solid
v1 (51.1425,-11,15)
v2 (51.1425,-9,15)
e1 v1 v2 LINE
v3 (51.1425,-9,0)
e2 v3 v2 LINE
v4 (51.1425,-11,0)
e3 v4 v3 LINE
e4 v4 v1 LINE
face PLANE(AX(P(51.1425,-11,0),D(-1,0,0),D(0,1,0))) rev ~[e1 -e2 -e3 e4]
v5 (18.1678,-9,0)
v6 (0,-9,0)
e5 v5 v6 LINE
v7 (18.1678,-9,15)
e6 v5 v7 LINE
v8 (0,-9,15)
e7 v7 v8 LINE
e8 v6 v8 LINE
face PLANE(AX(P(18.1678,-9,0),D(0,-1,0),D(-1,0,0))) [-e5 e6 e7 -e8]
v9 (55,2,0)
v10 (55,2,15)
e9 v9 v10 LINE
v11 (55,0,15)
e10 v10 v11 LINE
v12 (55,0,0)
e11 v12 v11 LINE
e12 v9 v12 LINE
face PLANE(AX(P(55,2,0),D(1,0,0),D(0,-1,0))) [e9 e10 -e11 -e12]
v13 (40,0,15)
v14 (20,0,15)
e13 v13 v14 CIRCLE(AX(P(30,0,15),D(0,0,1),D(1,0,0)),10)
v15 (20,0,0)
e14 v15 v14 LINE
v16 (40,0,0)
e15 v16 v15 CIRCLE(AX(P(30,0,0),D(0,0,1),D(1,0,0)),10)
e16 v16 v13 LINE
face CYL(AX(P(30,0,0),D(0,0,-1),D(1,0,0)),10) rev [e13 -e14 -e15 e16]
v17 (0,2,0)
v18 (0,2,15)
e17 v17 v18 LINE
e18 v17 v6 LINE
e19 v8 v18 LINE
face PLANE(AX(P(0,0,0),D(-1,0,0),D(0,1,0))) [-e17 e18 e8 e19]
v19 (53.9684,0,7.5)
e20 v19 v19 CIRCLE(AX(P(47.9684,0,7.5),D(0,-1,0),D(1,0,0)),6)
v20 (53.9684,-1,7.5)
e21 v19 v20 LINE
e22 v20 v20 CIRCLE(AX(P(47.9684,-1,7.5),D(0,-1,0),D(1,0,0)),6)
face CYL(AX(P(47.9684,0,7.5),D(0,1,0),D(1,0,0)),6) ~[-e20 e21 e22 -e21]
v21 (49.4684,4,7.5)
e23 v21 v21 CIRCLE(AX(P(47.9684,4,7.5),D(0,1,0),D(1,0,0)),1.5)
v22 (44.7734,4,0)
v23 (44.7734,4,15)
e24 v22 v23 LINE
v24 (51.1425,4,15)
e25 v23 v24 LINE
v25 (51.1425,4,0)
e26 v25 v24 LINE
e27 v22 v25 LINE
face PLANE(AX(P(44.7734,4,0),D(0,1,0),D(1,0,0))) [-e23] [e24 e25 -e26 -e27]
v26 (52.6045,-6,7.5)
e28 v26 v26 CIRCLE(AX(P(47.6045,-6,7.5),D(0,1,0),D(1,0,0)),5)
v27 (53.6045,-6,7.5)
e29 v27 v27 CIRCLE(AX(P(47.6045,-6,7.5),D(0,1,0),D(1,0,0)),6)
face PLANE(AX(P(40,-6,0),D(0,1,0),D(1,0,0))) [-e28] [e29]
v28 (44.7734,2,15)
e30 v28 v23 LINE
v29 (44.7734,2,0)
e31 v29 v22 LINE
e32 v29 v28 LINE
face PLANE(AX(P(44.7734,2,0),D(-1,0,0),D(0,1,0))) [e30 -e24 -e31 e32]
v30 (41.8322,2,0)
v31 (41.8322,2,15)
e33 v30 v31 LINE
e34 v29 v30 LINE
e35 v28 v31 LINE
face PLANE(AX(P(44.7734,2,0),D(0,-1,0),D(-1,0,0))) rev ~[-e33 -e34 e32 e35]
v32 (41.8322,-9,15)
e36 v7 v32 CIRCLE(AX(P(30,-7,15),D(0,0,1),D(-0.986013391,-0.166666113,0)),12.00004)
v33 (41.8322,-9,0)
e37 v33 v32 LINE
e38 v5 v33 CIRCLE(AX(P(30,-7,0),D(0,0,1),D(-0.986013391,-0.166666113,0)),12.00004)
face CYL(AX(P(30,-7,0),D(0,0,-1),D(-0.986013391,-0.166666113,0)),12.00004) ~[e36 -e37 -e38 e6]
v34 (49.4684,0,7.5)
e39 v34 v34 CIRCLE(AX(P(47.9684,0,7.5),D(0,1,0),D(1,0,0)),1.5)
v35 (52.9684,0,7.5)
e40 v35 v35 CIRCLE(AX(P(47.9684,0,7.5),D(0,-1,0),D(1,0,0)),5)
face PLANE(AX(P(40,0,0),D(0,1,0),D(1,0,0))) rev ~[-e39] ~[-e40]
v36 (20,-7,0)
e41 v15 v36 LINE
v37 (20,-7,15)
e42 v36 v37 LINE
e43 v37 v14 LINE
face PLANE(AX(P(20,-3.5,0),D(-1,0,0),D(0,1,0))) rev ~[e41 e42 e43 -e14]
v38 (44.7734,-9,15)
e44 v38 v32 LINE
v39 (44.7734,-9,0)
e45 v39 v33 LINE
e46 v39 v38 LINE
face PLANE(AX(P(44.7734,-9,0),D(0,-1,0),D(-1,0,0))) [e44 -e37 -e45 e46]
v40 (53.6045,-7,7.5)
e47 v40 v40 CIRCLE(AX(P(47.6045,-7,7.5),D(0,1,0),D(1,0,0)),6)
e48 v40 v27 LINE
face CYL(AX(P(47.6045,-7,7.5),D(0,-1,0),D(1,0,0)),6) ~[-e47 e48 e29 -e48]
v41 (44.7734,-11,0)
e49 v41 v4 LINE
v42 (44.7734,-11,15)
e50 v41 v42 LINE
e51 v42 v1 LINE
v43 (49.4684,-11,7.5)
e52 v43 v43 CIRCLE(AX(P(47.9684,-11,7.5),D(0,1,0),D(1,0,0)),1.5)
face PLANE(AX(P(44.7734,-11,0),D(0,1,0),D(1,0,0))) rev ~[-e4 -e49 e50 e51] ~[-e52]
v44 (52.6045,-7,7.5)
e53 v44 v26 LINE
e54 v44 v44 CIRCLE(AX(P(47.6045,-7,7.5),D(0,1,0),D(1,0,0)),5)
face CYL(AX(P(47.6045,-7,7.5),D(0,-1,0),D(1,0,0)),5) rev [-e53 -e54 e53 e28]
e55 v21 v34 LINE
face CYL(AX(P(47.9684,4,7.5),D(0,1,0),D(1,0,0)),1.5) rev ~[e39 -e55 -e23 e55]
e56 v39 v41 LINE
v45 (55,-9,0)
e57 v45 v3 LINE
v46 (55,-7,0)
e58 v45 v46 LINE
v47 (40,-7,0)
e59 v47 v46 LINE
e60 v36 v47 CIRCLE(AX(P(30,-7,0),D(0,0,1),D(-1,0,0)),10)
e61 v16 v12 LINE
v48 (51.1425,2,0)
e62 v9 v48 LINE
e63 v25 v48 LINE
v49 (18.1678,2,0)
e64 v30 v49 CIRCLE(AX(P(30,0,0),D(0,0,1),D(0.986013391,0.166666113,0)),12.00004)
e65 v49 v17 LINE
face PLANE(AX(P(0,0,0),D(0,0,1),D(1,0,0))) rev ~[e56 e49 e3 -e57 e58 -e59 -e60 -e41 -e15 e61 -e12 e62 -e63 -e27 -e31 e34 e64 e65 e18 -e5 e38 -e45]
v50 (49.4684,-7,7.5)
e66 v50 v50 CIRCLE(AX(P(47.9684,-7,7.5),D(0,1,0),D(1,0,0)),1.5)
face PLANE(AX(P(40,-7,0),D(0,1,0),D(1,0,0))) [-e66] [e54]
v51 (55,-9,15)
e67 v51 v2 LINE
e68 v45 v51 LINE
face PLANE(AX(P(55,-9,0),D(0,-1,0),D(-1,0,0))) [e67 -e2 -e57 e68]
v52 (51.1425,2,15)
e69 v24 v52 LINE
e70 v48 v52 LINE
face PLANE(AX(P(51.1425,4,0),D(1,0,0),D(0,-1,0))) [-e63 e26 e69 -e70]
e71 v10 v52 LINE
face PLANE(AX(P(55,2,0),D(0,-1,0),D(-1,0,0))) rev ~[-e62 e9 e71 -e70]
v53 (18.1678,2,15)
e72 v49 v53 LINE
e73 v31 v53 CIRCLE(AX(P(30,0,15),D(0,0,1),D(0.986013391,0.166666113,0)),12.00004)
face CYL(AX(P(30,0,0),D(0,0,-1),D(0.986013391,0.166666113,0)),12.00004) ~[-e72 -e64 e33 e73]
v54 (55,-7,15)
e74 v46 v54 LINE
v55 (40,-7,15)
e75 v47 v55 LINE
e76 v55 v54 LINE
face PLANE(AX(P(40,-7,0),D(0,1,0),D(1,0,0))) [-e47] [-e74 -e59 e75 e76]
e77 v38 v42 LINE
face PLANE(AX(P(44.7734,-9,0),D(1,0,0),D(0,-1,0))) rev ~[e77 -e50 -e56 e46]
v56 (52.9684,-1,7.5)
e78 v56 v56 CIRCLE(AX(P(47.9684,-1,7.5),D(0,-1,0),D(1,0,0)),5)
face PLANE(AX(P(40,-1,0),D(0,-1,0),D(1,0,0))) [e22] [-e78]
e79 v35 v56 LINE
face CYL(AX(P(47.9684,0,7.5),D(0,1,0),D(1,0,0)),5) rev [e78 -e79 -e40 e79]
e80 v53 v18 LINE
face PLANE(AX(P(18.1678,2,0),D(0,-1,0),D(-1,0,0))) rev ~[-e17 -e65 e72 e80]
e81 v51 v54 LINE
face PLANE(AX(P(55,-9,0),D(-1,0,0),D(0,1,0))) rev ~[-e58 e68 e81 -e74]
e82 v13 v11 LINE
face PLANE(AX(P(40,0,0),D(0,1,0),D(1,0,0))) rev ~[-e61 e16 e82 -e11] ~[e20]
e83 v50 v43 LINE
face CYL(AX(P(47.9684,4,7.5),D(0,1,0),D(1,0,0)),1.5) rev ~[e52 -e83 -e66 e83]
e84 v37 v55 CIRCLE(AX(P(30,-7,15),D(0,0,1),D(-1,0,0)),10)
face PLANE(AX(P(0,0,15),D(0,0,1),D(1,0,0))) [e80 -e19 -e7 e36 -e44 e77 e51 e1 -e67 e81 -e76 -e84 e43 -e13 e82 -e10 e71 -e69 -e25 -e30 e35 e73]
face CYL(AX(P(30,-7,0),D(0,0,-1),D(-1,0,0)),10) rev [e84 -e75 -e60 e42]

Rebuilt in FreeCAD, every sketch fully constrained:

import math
import FreeCAD as App
import Part
import Sketcher

V = App.Vector

doc = App.newDocument("Part")
body = doc.addObject("PartDesign::Body", "Body")

sketch1 = doc.addObject("Sketcher::SketchObject", "Sketch")
body.addObject(sketch1)
sketch1.AttachmentSupport = (doc.XY_Plane, [""])
sketch1.MapMode = "FlatFace"
sketch1.addGeometry([
    Part.LineSegment(V(0, 2, 0), V(0, -9, 0)),
    Part.LineSegment(V(0, -9, 0), V(18.2, -9, 0)),
    Part.ArcOfCircle(Part.Circle(V(30, -7, 0), V(0, 0, 1), 12), math.radians(-170), math.radians(-10)),
    Part.LineSegment(V(41.8, -9, 0), V(44.8, -9, 0)),
    Part.LineSegment(V(44.8, -9, 0), V(44.8, -11, 0)),
    Part.LineSegment(V(44.8, -11, 0), V(51.1, -11, 0)),
    Part.LineSegment(V(51.1, -11, 0), V(51.1, -9, 0)),
    Part.LineSegment(V(51.1, -9, 0), V(55, -9, 0)),
    Part.LineSegment(V(55, -9, 0), V(55, -7, 0)),
    Part.LineSegment(V(55, -7, 0), V(40, -7, 0)),
    Part.ArcOfCircle(Part.Circle(V(30, -7, 0), V(0, 0, 1), 10), math.radians(180), math.radians(360)),
    Part.LineSegment(V(20, -7, 0), V(20, 0, 0)),
    Part.ArcOfCircle(Part.Circle(V(30, 0, 0), V(0, 0, 1), 10), math.radians(0), math.radians(180)),
    Part.LineSegment(V(40, 0, 0), V(55, 0, 0)),
    Part.LineSegment(V(55, 0, 0), V(55, 2, 0)),
    Part.LineSegment(V(55, 2, 0), V(51.1, 2, 0)),
    Part.LineSegment(V(51.1, 2, 0), V(51.1, 4, 0)),
    Part.LineSegment(V(51.1, 4, 0), V(44.8, 4, 0)),
    Part.LineSegment(V(44.8, 4, 0), V(44.8, 2, 0)),
    Part.LineSegment(V(44.8, 2, 0), V(41.8, 2, 0)),
    Part.ArcOfCircle(Part.Circle(V(30, 0, 0), V(0, 0, 1), 12), math.radians(10), math.radians(170)),
    Part.LineSegment(V(18.2, 2, 0), V(0, 2, 0)),
], False)
sketch1.addConstraint([
    Sketcher.Constraint("Coincident", 0, 2, 1, 1),
    Sketcher.Constraint("Coincident", 1, 2, 2, 1),
    Sketcher.Constraint("Coincident", 2, 2, 3, 1),
    Sketcher.Constraint("Coincident", 3, 2, 4, 1),
    Sketcher.Constraint("Coincident", 4, 2, 5, 1),
    Sketcher.Constraint("Coincident", 5, 2, 6, 1),
    Sketcher.Constraint("Coincident", 6, 2, 7, 1),
    Sketcher.Constraint("Coincident", 7, 2, 8, 1),
    Sketcher.Constraint("Coincident", 8, 2, 9, 1),
    Sketcher.Constraint("Coincident", 9, 2, 10, 2),
    Sketcher.Constraint("Tangent", 10, 1, 11, 1),
    Sketcher.Constraint("Tangent", 11, 2, 12, 2),
    Sketcher.Constraint("Coincident", 12, 1, 13, 1),
    Sketcher.Constraint("Coincident", 13, 2, 14, 1),
    Sketcher.Constraint("Coincident", 14, 2, 15, 1),
    Sketcher.Constraint("Coincident", 15, 2, 16, 1),
    Sketcher.Constraint("Coincident", 16, 2, 17, 1),
    Sketcher.Constraint("Coincident", 17, 2, 18, 1),
    Sketcher.Constraint("Coincident", 18, 2, 19, 1),
    Sketcher.Constraint("Coincident", 19, 2, 20, 1),
    Sketcher.Constraint("Coincident", 20, 2, 21, 1),
    Sketcher.Constraint("Coincident", 21, 2, 0, 1),
    Sketcher.Constraint("Vertical", 0),
    Sketcher.Constraint("Horizontal", 1),
    Sketcher.Constraint("Horizontal", 3),
    Sketcher.Constraint("Vertical", 4),
    Sketcher.Constraint("Horizontal", 5),
    Sketcher.Constraint("Vertical", 6),
    Sketcher.Constraint("Horizontal", 7),
    Sketcher.Constraint("Vertical", 8),
    Sketcher.Constraint("Horizontal", 9),
    Sketcher.Constraint("Vertical", 11),
    Sketcher.Constraint("Horizontal", 13),
    Sketcher.Constraint("Vertical", 14),
    Sketcher.Constraint("Horizontal", 15),
    Sketcher.Constraint("Vertical", 16),
    Sketcher.Constraint("Horizontal", 17),
    Sketcher.Constraint("Vertical", 18),
    Sketcher.Constraint("Horizontal", 19),
    Sketcher.Constraint("Horizontal", 21),
    Sketcher.Constraint("Coincident", 10, 3, 2, 3),
    Sketcher.Constraint("Coincident", 20, 3, 12, 3),
    Sketcher.Constraint("Equal", 10, 12),
    Sketcher.Constraint("Equal", 2, 20),
    Sketcher.Constraint("PointOnObject", 12, 3, -1),
    Sketcher.Constraint("PointOnObject", 0, 2, -2),
    Sketcher.Constraint("PointOnObject", 12, 1, -1),
    Sketcher.Constraint("Horizontal", 1, 2, 2, 2),
    Sketcher.Constraint("Horizontal", 3, 2, 6, 2),
    Sketcher.Constraint("Horizontal", 10, 3, 8, 2),
    Sketcher.Constraint("Horizontal", 15, 2, 18, 2),
    Sketcher.Constraint("Horizontal", 19, 2, 20, 2),
    Sketcher.Constraint("Vertical", 8, 2, 13, 2),
    Sketcher.Constraint("Vertical", 6, 2, 15, 2),
    Sketcher.Constraint("Vertical", 4, 2, 17, 2),
    Sketcher.Constraint("Vertical", 2, 2, 19, 2),
    Sketcher.Constraint("Equal", 6, 8),
    Sketcher.Constraint("Equal", 14, 16),
    Sketcher.Constraint("Radius", 10, 10.0),
    Sketcher.Constraint("DistanceX", 9, 2, 9, 1, 15.0),
    Sketcher.Constraint("DistanceY", 4, 2, 4, 1, 2.0),
    Sketcher.Constraint("DistanceY", 11, 1, 11, 2, 7.0),
    Sketcher.Constraint("DistanceX", -1, 1, 10, 1, 20.0),
    Sketcher.Constraint("Radius", 2, 12.0),
    Sketcher.Constraint("DistanceX", 5, 1, 5, 2, 6.369),
    Sketcher.Constraint("DistanceX", 3, 1, 3, 2, 2.9412),
])
pad1 = doc.addObject("PartDesign::Pad", "Pad")
body.addObject(pad1)
pad1.Profile = sketch1
pad1.Length = 15

sketch2 = doc.addObject("Sketcher::SketchObject", "Sketch001")
body.addObject(sketch2)
sketch2.AttachmentSupport = (doc.XZ_Plane, [""])
sketch2.MapMode = "FlatFace"
sketch2.AttachmentOffset = App.Placement(V(0, 0, -4), App.Rotation())
sketch2.addGeometry(Part.Circle(V(48, 7.5, 0), V(0, 0, 1), 1.5), False)
sketch2.addConstraint([
    Sketcher.Constraint("Diameter", 0, 3.0),
    Sketcher.Constraint("DistanceY", -1, 1, 0, 3, 7.5),
    Sketcher.Constraint("DistanceX", -1, 1, 0, 3, 47.9684),
])
pocket1 = doc.addObject("PartDesign::Pocket", "Pocket")
body.addObject(pocket1)
pocket1.Profile = sketch2
pocket1.Length = 15
pocket1.Reversed = True

sketch3 = doc.addObject("Sketcher::SketchObject", "Sketch002")
body.addObject(sketch3)
sketch3.AttachmentSupport = (doc.XZ_Plane, [""])
sketch3.MapMode = "FlatFace"
sketch3.AttachmentOffset = App.Placement(V(0, 0, 7), App.Rotation())
sketch3.addGeometry([
    Part.Circle(V(48, 8, 0), V(0, 0, 1), 6),
    Part.Circle(V(48, 8, 0), V(0, 0, 1), 5),
], False)
sketch3.addConstraint([
    Sketcher.Constraint("Coincident", 1, 3, 0, 3),
    Sketcher.Constraint("Diameter", 0, 12.0),
    Sketcher.Constraint("Diameter", 1, 10.0),
    Sketcher.Constraint("DistanceY", -1, 1, 0, 3, 7.5),
    Sketcher.Constraint("DistanceX", -1, 1, 0, 3, 47.6045),
])
pad2 = doc.addObject("PartDesign::Pad", "Pad001")
body.addObject(pad2)
pad2.Profile = sketch3
pad2.Length = 1
pad2.Reversed = True

sketch4 = doc.addObject("Sketcher::SketchObject", "Sketch003")
body.addObject(sketch4)
sketch4.AttachmentSupport = (doc.XZ_Plane, [""])
sketch4.MapMode = "FlatFace"
sketch4.addGeometry([
    Part.Circle(V(48, 8, 0), V(0, 0, 1), 6),
    Part.Circle(V(48, 8, 0), V(0, 0, 1), 5),
], False)
sketch4.addConstraint([
    Sketcher.Constraint("Coincident", 1, 3, 0, 3),
    Sketcher.Constraint("Diameter", 0, 12.0),
    Sketcher.Constraint("Diameter", 1, 10.0),
    Sketcher.Constraint("DistanceY", -1, 1, 0, 3, 7.5),
    Sketcher.Constraint("DistanceX", -1, 1, 0, 3, 47.9684),
])
pad3 = doc.addObject("PartDesign::Pad", "Pad002")
body.addObject(pad3)
pad3.Profile = sketch4
pad3.Length = 1

doc.recompute()
